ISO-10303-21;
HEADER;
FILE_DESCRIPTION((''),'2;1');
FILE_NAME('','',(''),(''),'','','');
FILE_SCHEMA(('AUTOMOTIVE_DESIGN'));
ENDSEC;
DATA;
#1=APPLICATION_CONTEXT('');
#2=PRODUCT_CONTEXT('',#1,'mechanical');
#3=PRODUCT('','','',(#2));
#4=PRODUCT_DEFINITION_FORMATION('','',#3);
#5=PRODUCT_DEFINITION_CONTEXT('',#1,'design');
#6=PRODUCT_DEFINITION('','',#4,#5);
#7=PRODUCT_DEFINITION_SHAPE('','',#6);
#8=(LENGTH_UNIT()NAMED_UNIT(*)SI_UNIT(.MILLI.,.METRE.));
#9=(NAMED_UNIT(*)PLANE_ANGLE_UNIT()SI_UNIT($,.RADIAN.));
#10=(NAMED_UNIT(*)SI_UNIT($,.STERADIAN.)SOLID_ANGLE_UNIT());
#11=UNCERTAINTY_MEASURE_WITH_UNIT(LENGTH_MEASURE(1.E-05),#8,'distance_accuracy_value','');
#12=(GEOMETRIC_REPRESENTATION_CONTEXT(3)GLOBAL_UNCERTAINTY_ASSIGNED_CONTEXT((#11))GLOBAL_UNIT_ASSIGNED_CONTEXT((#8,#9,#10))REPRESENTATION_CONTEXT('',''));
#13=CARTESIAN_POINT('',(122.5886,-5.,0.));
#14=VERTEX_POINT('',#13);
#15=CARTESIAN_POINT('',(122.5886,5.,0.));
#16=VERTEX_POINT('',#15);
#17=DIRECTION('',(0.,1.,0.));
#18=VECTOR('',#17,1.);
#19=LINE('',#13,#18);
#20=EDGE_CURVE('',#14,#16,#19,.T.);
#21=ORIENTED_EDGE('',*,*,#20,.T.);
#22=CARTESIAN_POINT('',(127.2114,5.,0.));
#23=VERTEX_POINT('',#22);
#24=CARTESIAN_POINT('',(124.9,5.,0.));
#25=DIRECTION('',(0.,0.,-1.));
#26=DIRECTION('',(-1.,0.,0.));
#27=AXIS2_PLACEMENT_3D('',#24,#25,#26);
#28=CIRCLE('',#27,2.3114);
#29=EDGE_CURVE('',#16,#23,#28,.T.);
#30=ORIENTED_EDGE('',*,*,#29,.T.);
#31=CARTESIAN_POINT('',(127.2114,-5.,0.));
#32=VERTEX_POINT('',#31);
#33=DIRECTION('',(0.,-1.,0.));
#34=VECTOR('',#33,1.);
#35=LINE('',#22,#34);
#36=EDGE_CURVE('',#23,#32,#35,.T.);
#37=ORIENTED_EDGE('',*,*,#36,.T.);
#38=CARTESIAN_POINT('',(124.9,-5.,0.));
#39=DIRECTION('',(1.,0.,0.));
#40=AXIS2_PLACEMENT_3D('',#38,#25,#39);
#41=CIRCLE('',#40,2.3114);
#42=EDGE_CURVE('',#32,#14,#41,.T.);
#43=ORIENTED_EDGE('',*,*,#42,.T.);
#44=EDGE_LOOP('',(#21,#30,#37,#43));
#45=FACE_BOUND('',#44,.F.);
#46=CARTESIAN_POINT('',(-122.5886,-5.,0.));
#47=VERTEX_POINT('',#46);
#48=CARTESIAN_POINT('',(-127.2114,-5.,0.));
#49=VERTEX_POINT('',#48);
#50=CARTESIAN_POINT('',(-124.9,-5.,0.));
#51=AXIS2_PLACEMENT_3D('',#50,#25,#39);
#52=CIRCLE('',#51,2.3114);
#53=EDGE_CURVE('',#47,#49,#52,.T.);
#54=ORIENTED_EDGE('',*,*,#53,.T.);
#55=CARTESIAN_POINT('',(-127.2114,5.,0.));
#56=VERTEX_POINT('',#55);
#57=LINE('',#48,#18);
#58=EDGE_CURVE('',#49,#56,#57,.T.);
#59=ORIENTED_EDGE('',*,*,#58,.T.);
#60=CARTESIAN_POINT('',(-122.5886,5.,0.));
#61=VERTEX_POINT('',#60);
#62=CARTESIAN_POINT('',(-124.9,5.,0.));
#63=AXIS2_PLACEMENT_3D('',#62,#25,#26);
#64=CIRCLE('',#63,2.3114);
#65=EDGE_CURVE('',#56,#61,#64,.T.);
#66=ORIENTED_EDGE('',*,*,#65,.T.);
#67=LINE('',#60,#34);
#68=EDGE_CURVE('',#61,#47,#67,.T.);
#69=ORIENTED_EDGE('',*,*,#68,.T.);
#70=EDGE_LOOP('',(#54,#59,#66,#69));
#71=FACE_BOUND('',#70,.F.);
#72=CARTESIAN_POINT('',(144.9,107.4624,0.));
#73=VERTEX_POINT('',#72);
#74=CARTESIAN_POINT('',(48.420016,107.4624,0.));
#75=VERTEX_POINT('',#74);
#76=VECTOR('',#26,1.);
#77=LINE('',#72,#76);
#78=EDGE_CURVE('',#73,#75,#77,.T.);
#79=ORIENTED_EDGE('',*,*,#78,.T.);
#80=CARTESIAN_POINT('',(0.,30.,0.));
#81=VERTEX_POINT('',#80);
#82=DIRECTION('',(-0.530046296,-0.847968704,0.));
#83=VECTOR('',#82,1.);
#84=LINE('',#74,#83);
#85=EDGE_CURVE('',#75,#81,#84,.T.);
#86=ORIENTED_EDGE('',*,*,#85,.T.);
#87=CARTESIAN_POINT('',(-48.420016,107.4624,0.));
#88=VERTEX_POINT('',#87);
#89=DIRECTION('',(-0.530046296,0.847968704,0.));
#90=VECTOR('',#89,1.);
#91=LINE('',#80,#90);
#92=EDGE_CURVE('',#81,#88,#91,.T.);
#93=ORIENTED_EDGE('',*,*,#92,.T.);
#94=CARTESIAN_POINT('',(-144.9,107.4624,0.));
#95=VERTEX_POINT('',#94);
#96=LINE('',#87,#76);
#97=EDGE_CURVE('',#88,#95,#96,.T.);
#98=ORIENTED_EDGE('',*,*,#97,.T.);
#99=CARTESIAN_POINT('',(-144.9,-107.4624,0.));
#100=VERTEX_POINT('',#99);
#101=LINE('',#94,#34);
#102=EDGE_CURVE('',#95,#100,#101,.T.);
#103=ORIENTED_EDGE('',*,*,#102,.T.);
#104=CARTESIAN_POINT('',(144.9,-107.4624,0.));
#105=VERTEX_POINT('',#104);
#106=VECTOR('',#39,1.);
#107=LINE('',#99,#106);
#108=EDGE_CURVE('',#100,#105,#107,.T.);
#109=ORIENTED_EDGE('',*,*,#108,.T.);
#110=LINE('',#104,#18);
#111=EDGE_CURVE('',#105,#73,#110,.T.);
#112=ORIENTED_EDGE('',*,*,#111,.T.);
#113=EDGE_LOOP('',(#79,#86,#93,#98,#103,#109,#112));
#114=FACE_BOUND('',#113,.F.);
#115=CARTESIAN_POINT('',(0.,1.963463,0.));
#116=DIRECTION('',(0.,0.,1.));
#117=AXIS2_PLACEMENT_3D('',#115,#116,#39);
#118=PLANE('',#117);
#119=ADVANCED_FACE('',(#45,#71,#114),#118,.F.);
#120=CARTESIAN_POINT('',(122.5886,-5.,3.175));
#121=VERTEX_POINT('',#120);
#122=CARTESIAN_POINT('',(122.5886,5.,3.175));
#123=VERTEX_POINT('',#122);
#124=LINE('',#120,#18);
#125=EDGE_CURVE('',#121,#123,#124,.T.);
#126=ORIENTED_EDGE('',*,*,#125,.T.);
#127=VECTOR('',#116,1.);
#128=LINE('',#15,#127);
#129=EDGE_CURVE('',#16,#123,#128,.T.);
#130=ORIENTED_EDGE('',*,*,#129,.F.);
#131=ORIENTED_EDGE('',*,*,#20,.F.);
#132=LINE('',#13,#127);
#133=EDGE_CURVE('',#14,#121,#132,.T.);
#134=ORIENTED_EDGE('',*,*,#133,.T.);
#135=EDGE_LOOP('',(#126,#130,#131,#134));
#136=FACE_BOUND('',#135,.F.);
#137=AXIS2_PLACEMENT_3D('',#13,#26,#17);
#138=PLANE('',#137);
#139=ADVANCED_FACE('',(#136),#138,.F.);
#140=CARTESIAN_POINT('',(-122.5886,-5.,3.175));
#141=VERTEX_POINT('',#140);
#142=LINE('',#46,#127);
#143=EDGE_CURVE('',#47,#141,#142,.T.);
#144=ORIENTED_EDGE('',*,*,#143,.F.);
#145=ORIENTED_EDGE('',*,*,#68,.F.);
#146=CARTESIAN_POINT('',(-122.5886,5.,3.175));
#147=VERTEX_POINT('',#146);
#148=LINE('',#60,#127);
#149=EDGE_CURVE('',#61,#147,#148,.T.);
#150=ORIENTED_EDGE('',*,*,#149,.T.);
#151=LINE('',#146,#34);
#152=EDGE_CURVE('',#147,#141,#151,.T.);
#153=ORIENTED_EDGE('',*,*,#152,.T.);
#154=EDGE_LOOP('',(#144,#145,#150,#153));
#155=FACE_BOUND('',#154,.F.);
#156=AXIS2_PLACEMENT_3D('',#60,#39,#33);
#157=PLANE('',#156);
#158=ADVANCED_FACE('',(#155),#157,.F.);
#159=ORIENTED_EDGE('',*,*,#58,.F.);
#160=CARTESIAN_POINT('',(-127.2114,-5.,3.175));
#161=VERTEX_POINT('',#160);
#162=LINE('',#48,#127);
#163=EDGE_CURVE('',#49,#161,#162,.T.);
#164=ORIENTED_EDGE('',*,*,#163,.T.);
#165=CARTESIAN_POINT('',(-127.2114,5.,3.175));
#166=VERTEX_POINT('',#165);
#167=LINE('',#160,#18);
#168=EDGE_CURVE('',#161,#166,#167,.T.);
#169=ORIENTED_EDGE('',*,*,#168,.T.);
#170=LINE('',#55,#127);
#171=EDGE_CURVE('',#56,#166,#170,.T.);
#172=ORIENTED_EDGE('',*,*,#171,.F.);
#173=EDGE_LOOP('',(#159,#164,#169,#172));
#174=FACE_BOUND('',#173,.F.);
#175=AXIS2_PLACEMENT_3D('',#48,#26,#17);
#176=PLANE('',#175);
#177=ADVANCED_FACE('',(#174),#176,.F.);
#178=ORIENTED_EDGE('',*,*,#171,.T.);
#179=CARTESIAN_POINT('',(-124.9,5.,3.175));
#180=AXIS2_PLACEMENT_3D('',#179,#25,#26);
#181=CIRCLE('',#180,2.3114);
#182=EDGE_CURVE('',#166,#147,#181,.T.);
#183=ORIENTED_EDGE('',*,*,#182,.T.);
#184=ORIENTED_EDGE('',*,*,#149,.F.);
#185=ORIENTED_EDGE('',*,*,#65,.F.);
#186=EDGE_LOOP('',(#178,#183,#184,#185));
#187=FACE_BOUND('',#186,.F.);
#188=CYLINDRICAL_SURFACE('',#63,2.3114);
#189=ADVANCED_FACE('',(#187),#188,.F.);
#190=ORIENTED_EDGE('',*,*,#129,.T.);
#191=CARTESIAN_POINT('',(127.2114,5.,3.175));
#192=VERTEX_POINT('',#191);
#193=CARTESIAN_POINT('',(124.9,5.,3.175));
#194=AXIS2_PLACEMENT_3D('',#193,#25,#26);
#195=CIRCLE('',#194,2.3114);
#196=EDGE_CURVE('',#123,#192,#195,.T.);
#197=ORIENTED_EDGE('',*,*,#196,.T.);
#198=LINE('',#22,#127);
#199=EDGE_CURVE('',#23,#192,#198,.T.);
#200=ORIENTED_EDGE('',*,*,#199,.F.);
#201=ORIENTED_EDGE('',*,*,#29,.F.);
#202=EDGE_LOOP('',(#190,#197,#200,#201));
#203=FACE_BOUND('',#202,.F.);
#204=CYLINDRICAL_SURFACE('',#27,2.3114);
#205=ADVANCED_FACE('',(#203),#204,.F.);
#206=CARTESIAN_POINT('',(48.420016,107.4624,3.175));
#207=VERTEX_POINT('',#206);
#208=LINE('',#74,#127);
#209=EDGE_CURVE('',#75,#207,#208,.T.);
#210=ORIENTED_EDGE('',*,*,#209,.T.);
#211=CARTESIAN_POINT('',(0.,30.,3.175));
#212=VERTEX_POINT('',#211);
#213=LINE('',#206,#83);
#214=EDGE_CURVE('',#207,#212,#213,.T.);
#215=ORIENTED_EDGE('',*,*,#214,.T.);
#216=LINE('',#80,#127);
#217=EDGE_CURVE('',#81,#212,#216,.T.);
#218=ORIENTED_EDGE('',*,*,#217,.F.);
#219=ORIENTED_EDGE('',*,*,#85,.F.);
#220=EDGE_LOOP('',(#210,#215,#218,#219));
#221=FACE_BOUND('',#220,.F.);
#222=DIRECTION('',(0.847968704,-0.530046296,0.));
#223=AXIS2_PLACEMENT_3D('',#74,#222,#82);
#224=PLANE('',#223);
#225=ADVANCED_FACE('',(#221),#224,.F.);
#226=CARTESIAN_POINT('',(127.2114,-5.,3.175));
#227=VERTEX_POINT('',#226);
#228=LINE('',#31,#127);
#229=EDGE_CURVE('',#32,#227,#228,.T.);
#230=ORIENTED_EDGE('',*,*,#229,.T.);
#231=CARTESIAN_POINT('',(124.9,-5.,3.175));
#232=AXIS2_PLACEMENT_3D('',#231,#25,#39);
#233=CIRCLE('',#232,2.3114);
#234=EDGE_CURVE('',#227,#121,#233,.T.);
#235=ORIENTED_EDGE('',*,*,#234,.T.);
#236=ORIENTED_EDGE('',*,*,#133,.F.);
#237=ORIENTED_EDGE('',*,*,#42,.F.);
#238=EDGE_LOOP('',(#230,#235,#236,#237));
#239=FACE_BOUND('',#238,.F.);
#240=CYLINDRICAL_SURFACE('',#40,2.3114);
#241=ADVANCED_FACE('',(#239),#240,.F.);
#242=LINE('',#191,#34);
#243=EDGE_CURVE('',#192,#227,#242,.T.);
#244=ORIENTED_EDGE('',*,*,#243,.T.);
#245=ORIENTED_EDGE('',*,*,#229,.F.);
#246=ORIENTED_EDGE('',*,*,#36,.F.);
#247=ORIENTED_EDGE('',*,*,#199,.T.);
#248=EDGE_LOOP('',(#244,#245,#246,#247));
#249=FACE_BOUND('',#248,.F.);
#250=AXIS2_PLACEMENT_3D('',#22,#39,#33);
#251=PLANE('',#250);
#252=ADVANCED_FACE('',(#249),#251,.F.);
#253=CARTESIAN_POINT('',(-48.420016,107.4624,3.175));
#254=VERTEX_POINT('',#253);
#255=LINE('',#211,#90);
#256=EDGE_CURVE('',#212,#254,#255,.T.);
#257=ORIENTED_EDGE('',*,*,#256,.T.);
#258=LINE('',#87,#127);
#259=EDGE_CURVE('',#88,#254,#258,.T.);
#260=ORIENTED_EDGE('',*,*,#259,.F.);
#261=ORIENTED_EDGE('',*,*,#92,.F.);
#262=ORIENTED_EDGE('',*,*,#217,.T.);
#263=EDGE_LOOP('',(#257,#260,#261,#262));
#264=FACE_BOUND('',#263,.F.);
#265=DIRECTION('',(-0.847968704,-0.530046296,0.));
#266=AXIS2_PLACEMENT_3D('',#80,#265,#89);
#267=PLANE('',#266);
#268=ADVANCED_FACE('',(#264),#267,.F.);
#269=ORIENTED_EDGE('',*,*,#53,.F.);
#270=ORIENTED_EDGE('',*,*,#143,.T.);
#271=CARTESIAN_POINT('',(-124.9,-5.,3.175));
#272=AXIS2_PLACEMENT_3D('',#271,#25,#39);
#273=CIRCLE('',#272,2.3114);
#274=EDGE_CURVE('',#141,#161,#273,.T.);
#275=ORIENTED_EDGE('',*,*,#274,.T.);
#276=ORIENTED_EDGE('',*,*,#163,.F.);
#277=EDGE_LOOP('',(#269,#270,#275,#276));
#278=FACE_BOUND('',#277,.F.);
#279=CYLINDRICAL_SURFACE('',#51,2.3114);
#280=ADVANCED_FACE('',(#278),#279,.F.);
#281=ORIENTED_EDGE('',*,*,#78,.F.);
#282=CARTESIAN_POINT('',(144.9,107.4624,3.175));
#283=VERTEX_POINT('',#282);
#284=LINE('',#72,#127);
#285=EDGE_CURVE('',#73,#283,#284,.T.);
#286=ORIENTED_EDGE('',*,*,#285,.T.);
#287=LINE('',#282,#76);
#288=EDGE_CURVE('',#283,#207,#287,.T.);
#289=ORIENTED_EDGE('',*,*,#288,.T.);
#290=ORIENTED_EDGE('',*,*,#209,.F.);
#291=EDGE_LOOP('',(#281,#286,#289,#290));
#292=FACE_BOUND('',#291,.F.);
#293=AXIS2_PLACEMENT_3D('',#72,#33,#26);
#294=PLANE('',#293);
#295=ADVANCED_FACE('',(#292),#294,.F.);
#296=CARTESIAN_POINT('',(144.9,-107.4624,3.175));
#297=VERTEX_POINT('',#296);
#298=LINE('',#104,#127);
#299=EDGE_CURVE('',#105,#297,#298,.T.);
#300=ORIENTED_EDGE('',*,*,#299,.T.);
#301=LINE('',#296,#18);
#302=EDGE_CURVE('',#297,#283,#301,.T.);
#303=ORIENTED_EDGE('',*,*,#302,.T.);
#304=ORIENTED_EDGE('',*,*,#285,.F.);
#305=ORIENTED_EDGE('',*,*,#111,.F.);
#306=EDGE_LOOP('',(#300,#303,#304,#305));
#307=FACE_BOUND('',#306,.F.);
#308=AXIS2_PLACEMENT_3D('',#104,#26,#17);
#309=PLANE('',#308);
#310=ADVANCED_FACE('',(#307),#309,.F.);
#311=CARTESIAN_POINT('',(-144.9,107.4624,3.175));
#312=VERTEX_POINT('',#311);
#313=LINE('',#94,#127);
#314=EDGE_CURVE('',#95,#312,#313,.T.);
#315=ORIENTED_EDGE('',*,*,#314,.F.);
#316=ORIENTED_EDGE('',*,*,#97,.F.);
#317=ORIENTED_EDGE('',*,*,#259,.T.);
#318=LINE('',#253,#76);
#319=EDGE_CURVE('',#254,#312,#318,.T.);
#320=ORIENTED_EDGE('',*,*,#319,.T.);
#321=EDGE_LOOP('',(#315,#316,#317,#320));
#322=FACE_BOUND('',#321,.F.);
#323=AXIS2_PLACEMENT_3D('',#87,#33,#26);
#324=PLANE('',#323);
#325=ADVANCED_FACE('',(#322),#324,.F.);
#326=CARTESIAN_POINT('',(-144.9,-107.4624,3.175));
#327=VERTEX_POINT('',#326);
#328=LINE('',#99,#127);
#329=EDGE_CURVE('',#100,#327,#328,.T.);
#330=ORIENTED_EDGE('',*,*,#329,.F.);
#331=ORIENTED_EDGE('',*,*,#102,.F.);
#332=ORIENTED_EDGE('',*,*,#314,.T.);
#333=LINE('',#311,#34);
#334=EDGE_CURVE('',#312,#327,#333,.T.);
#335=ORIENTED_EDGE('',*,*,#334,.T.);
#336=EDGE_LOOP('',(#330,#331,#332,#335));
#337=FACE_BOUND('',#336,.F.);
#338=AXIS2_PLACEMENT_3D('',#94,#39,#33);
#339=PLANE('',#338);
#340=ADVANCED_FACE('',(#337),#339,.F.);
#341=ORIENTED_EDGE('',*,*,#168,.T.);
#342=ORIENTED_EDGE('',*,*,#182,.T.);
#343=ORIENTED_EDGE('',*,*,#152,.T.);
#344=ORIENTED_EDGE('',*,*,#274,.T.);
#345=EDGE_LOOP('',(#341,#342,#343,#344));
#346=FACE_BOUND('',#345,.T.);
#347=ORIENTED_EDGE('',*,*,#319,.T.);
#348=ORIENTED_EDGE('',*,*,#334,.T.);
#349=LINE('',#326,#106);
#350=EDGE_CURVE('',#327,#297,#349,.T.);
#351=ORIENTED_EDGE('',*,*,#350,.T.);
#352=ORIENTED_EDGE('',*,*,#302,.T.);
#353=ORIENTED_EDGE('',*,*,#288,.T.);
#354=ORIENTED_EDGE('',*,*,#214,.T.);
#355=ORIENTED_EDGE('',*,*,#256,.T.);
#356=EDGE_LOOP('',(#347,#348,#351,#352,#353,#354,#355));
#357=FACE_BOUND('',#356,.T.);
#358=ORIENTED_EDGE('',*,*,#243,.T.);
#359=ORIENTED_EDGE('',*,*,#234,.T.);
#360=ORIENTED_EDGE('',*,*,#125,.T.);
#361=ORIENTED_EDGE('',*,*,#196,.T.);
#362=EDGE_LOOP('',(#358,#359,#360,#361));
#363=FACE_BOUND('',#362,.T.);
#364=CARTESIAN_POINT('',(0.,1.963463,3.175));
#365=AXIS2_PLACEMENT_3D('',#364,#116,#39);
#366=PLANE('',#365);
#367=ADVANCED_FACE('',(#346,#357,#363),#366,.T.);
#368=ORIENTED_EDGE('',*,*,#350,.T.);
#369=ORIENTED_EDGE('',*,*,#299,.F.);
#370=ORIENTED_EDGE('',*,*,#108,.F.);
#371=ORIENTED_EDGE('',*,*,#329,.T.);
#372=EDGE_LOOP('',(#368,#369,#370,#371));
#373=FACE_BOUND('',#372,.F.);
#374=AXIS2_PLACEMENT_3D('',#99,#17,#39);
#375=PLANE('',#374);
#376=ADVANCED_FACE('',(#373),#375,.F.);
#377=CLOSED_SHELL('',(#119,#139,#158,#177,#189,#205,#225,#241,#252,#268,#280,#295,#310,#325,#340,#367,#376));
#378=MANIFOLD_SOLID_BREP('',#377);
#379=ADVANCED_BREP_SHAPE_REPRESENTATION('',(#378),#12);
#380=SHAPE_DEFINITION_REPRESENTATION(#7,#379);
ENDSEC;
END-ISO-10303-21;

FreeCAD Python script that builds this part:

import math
import FreeCAD as App
import Part
import Sketcher

V = App.Vector

doc = App.newDocument("Part")
body = doc.addObject("PartDesign::Body", "Body")

# Sketch on XY plane
sketch1 = doc.addObject("Sketcher::SketchObject", "Sketch")
body.addObject(sketch1)
sketch1.AttachmentSupport = (doc.XY_Plane, [""])
sketch1.MapMode = "FlatFace"
sketch1.addGeometry([
    Part.LineSegment(V(-144.9, -107.5, 0), V(144.9, -107.5, 0)),  # 0
    Part.LineSegment(V(144.9, -107.5, 0), V(144.9, 107.5, 0)),  # 1
    Part.LineSegment(V(144.9, 107.5, 0), V(48.4, 107.5, 0)),  # 2
    Part.LineSegment(V(48.4, 107.5, 0), V(0, 30, 0)),  # 3
    Part.LineSegment(V(0, 30, 0), V(-48.4, 107.5, 0)),  # 4
    Part.LineSegment(V(-48.4, 107.5, 0), V(-144.9, 107.5, 0)),  # 5
    Part.LineSegment(V(-144.9, 107.5, 0), V(-144.9, -107.5, 0)),  # 6
    Part.ArcOfCircle(Part.Circle(V(-124.9, -5, 0), V(0, 0, 1), 2.3), math.radians(180), math.radians(360)),  # 7
    Part.LineSegment(V(-127.2, -5, 0), V(-127.2, 5, 0)),  # 8
    Part.ArcOfCircle(Part.Circle(V(-124.9, 5, 0), V(0, 0, 1), 2.3), math.radians(0), math.radians(180)),  # 9
    Part.LineSegment(V(-122.6, 5, 0), V(-122.6, -5, 0)),  # 10
    Part.LineSegment(V(122.6, -5, 0), V(122.6, 5, 0)),  # 11
    Part.ArcOfCircle(Part.Circle(V(124.9, 5, 0), V(0, 0, 1), 2.3), math.radians(0), math.radians(180)),  # 12
    Part.LineSegment(V(127.2, 5, 0), V(127.2, -5, 0)),  # 13
    Part.ArcOfCircle(Part.Circle(V(124.9, -5, 0), V(0, 0, 1), 2.3), math.radians(180), math.radians(360)),  # 14
], False)
sketch1.addConstraint([
    Sketcher.Constraint("Coincident", 0, 2, 1, 1),
    Sketcher.Constraint("Coincident", 1, 2, 2, 1),
    Sketcher.Constraint("Coincident", 2, 2, 3, 1),
    Sketcher.Constraint("Coincident", 3, 2, 4, 1),
    Sketcher.Constraint("Coincident", 4, 2, 5, 1),
    Sketcher.Constraint("Coincident", 5, 2, 6, 1),
    Sketcher.Constraint("Coincident", 6, 2, 0, 1),
    Sketcher.Constraint("Tangent", 7, 1, 8, 1),
    Sketcher.Constraint("Tangent", 8, 2, 9, 2),
    Sketcher.Constraint("Tangent", 9, 1, 10, 1),
    Sketcher.Constraint("Tangent", 10, 2, 7, 2),
    Sketcher.Constraint("Tangent", 11, 2, 12, 2),
    Sketcher.Constraint("Tangent", 12, 1, 13, 1),
    Sketcher.Constraint("Tangent", 13, 2, 14, 2),
    Sketcher.Constraint("Tangent", 14, 1, 11, 1),
    Sketcher.Constraint("Horizontal", 0),
    Sketcher.Constraint("Vertical", 1),
    Sketcher.Constraint("Horizontal", 2),
    Sketcher.Constraint("Horizontal", 5),
    Sketcher.Constraint("Vertical", 6),
    Sketcher.Constraint("Vertical", 8),
    Sketcher.Constraint("Vertical", 10),
    Sketcher.Constraint("Vertical", 11),
    Sketcher.Constraint("Vertical", 13),
    Sketcher.Constraint("Equal", 9, 12),
    Sketcher.Constraint("Symmetric", 7, 3, 12, 3, -1, 1),
    Sketcher.Constraint("Symmetric", 0, 2, 5, 2, -1, 1),
    Sketcher.Constraint("Symmetric", 2, 2, 4, 2, -2),
    Sketcher.Constraint("PointOnObject", 3, 2, -2),
    Sketcher.Constraint("Horizontal", 9, 3, 12, 3),
    Sketcher.Constraint("Horizontal", 7, 3, 14, 3),
    Sketcher.Constraint("DistanceY", 8, 1, 8, 2, 10.0),
    Sketcher.Constraint("DistanceX", 0, 1, 0, 2, 289.8),
    Sketcher.Constraint("DistanceY", -1, 1, 3, 2, 30.0),
    Sketcher.Constraint("DistanceX", 14, 3, 0, 2, 20.0),
    Sketcher.Constraint("Radius", 7, 2.3114),
    Sketcher.Constraint("DistanceY", 1, 1, 1, 2, 214.9248),
    Sketcher.Constraint("Distance", 3, 91.350541),
])
pad1 = doc.addObject("PartDesign::Pad", "Pad")
body.addObject(pad1)
pad1.Profile = sketch1
pad1.Length = 3.175

doc.recompute()
